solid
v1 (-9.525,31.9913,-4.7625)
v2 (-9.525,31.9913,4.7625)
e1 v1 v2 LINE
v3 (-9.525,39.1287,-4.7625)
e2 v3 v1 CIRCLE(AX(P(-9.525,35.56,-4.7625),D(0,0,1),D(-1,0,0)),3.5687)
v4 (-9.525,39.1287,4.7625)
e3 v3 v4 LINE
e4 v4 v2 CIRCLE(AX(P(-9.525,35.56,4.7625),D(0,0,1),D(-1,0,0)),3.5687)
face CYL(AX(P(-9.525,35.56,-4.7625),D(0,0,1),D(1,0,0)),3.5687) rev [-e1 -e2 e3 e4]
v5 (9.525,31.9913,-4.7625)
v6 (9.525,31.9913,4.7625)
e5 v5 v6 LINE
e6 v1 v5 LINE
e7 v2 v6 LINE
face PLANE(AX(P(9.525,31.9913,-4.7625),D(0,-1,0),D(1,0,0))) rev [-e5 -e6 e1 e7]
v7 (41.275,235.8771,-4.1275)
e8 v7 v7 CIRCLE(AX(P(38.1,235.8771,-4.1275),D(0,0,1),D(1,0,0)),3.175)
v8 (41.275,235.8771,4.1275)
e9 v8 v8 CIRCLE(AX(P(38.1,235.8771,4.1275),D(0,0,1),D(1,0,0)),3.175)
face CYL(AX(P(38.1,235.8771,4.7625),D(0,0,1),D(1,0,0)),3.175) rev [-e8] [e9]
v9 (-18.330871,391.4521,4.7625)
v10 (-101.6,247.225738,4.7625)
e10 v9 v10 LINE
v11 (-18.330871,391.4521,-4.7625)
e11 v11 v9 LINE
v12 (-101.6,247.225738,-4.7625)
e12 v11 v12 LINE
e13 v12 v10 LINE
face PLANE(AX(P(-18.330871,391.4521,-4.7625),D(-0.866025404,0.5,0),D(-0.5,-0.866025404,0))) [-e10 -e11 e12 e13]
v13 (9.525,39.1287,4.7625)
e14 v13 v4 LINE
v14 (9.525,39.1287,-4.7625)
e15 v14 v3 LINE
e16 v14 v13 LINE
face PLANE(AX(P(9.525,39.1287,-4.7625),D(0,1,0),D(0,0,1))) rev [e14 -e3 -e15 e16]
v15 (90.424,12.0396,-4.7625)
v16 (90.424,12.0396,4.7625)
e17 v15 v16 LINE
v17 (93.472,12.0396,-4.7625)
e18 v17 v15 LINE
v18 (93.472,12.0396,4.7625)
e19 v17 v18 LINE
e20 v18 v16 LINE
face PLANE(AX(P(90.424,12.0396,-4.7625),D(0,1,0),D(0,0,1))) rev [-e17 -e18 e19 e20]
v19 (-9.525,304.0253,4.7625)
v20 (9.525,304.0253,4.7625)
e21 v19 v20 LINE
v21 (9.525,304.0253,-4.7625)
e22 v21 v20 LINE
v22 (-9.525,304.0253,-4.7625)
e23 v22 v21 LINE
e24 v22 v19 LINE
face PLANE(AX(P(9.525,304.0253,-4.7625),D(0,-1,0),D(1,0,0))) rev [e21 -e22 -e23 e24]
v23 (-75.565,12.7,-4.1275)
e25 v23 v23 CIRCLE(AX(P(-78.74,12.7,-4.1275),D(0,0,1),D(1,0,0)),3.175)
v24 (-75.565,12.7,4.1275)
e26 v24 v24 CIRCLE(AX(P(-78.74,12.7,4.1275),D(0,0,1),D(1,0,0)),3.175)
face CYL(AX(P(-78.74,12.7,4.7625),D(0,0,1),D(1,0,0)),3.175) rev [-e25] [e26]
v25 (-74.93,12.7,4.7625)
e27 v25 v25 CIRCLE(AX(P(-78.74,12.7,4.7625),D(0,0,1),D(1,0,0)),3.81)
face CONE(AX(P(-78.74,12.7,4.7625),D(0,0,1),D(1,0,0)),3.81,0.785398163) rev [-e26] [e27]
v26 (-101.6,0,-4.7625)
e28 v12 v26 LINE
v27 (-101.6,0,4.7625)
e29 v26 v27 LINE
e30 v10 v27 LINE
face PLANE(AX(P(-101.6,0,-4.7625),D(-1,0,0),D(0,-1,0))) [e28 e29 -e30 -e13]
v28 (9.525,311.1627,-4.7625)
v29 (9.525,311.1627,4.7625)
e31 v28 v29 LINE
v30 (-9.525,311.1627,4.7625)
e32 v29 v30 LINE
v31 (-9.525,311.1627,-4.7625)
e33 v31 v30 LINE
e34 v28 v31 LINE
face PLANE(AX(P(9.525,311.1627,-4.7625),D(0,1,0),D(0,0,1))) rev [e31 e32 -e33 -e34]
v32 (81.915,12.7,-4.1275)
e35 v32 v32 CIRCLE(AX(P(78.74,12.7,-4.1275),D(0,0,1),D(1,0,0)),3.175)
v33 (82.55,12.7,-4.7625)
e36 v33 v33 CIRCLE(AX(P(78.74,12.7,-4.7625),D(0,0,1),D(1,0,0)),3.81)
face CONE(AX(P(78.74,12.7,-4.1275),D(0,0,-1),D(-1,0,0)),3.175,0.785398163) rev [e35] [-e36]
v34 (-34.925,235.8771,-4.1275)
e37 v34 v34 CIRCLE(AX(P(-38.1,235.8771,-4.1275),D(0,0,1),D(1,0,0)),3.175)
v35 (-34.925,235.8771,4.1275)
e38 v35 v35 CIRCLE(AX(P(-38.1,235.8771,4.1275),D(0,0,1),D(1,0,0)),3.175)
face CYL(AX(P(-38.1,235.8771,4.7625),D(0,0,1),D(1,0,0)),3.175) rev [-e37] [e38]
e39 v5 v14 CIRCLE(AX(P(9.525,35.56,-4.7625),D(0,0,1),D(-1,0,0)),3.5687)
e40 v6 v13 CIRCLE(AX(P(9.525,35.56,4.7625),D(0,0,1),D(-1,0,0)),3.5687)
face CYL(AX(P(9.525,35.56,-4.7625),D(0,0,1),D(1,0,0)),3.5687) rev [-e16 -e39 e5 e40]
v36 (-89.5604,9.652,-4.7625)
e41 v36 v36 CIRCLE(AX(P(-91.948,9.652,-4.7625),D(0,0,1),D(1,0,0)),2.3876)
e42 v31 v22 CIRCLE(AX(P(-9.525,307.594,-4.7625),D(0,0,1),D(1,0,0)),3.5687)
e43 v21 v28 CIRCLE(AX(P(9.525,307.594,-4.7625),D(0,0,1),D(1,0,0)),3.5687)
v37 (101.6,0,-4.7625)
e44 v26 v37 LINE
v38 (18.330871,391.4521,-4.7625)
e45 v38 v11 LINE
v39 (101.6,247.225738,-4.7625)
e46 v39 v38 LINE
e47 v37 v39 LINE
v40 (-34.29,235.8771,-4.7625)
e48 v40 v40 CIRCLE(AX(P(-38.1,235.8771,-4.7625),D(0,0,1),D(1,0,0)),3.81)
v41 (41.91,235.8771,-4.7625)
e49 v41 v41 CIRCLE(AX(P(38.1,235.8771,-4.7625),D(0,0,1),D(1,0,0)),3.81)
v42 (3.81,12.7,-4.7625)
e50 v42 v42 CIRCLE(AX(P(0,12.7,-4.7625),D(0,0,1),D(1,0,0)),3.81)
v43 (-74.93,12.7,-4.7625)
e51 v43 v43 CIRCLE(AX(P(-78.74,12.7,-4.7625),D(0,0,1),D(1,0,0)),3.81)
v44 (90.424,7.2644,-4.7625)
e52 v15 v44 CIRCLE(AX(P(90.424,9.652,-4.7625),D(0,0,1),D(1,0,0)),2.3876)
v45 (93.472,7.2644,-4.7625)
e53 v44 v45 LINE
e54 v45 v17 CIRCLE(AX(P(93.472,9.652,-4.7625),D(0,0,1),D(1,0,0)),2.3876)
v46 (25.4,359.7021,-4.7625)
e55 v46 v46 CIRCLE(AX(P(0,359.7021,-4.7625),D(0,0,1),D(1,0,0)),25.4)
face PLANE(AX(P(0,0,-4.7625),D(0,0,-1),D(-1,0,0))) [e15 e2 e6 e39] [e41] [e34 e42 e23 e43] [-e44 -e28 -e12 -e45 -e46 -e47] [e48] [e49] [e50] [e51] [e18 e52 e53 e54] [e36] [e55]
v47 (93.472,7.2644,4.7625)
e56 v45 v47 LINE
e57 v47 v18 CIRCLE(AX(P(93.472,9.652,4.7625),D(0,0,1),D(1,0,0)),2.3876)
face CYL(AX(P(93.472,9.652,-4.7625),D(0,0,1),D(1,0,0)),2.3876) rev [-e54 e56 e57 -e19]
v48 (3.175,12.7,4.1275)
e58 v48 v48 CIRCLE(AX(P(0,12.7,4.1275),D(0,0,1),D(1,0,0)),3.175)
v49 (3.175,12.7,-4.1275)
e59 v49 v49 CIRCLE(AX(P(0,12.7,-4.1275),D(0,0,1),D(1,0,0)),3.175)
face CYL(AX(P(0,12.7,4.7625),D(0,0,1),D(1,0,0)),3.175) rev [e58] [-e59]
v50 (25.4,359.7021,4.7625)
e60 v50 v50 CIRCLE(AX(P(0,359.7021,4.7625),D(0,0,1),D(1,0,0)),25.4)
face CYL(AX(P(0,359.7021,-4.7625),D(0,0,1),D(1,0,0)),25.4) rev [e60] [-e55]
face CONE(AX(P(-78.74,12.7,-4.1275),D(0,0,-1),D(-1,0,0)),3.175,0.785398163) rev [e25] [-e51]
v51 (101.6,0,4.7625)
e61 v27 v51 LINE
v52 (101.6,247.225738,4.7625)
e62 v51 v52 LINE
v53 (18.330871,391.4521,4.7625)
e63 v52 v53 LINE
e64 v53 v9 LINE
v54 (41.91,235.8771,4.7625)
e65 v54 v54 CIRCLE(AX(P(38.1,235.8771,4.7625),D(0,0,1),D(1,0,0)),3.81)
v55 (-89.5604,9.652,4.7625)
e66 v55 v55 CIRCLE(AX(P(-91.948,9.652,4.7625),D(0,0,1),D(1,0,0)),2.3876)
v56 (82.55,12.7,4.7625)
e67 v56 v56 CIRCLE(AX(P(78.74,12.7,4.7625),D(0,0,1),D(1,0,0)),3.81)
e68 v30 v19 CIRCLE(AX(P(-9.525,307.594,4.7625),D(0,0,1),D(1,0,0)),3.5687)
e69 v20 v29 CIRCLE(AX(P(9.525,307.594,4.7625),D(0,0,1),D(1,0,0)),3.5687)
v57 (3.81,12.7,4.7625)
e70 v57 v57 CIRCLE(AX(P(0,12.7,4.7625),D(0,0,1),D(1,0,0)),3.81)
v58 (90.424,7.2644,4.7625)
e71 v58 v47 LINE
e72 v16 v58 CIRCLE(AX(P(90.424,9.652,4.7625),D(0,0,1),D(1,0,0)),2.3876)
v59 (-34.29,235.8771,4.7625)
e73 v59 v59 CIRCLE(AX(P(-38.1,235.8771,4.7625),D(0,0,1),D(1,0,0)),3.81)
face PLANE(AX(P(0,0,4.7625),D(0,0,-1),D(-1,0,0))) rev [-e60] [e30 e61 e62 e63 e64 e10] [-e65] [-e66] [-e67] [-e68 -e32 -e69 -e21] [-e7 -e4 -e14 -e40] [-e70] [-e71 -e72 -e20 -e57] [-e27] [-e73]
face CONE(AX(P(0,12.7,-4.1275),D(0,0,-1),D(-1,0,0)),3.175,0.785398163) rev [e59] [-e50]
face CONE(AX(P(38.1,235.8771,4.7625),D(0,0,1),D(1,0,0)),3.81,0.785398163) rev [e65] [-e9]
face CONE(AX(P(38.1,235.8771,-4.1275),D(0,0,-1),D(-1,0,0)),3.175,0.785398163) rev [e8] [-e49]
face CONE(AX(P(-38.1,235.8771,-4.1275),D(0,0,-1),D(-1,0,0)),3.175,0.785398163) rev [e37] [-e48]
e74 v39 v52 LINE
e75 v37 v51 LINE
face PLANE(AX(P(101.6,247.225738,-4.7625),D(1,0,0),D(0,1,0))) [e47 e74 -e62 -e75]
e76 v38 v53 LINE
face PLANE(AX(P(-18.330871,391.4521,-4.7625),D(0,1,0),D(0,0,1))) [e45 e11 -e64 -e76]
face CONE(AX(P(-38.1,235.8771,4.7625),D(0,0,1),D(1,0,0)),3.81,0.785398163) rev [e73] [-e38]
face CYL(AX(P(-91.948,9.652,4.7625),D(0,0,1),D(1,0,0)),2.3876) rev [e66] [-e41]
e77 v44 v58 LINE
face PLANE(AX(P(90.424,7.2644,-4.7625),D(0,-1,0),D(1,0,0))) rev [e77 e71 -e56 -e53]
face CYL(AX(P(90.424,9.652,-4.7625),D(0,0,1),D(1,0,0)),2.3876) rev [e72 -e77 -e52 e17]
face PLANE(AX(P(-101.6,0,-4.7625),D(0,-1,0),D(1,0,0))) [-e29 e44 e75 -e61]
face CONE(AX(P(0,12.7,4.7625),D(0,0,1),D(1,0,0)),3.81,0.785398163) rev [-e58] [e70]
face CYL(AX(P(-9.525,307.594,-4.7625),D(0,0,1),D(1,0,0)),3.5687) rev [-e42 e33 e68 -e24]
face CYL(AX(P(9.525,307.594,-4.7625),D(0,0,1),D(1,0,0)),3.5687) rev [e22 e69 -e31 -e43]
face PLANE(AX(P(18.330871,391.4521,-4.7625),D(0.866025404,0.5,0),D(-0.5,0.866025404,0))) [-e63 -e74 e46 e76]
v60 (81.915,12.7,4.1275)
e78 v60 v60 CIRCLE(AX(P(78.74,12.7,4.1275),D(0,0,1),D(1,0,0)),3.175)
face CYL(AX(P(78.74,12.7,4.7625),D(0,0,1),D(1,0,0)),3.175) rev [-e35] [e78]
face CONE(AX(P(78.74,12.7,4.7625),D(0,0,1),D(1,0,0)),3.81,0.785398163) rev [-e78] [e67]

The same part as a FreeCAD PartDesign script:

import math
import FreeCAD as App
import Part
import Sketcher
Q = App.Units.Quantity


def add_polygon(sketch, points):
    """Adds a closed chain of lines whose ends are joined by coincident constraints."""
    first, n = sketch.GeometryCount, len(points)
    for a, b in zip(points, points[1:] + points[:1]):
        sketch.addGeometry(Part.LineSegment(App.Vector(*a, 0), App.Vector(*b, 0)), False)
    for i in range(n):
        sketch.addConstraint(Sketcher.Constraint("Coincident", first + i, 2, first + (i + 1) % n, 1))

doc = App.newDocument("Part")
body = doc.addObject("PartDesign::Body", "Body")

# Sketch on XY plane
sketch1 = body.newObject("Sketcher::SketchObject", "Sketch")
sketch1.AttachmentSupport = (doc.getObject("XY_Plane"), [""])
sketch1.MapMode = "FlatFace"
add_polygon(sketch1, [(-101.6, 0), (101.6, 0), (101.6, 247.225738), (18.330871, 391.4521), (-18.330871, 391.4521), (-101.6, 247.225738)])  # lines 0-5
sketch1.addGeometry(Part.ArcOfCircle(Part.Circle(App.Vector(9.525, 35.56, 0), App.Vector(0, 0, 1), 3.5687), math.radians(-90), math.radians(90)), False)  # 6
sketch1.addGeometry(Part.LineSegment(App.Vector(9.525, 31.9913, 0), App.Vector(-9.525, 31.9913, 0)), False)  # 7
sketch1.addGeometry(Part.ArcOfCircle(Part.Circle(App.Vector(-9.525, 35.56, 0), App.Vector(0, 0, 1), 3.5687), math.radians(90), math.radians(270)), False)  # 8
sketch1.addGeometry(Part.LineSegment(App.Vector(-9.525, 39.1287, 0), App.Vector(9.525, 39.1287, 0)), False)  # 9
sketch1.addGeometry(Part.ArcOfCircle(Part.Circle(App.Vector(9.525, 307.594, 0), App.Vector(0, 0, 1), 3.5687), math.radians(-90), math.radians(90)), False)  # 10
sketch1.addGeometry(Part.LineSegment(App.Vector(9.525, 304.0253, 0), App.Vector(-9.525, 304.0253, 0)), False)  # 11
sketch1.addGeometry(Part.ArcOfCircle(Part.Circle(App.Vector(-9.525, 307.594, 0), App.Vector(0, 0, 1), 3.5687), math.radians(90), math.radians(270)), False)  # 12
sketch1.addGeometry(Part.LineSegment(App.Vector(-9.525, 311.1627, 0), App.Vector(9.525, 311.1627, 0)), False)  # 13
sketch1.addGeometry(Part.Circle(App.Vector(0, 359.7021, 0), App.Vector(0, 0, 1), 25.4), False)  # 14
sketch1.addConstraint(Sketcher.Constraint("Tangent", 6, 1, 7, 1))
sketch1.addConstraint(Sketcher.Constraint("Tangent", 7, 2, 8, 2))
sketch1.addConstraint(Sketcher.Constraint("Tangent", 8, 1, 9, 1))
sketch1.addConstraint(Sketcher.Constraint("Tangent", 9, 2, 6, 2))
sketch1.addConstraint(Sketcher.Constraint("Tangent", 10, 1, 11, 1))
sketch1.addConstraint(Sketcher.Constraint("Tangent", 11, 2, 12, 2))
sketch1.addConstraint(Sketcher.Constraint("Tangent", 12, 1, 13, 1))
sketch1.addConstraint(Sketcher.Constraint("Tangent", 13, 2, 10, 2))
sketch1.addConstraint(Sketcher.Constraint("Horizontal", 0))
sketch1.addConstraint(Sketcher.Constraint("Vertical", 1))
sketch1.addConstraint(Sketcher.Constraint("Horizontal", 3))
sketch1.addConstraint(Sketcher.Constraint("Vertical", 5))
sketch1.addConstraint(Sketcher.Constraint("Horizontal", 7))
sketch1.addConstraint(Sketcher.Constraint("Horizontal", 9))
sketch1.addConstraint(Sketcher.Constraint("Horizontal", 11))
sketch1.addConstraint(Sketcher.Constraint("Horizontal", 13))
sketch1.addConstraint(Sketcher.Constraint("Equal", 8, 10))
sketch1.addConstraint(Sketcher.Constraint("Symmetric", 0, 2, 5, 2, -1, 1))
sketch1.addConstraint(Sketcher.Constraint("PointOnObject", 14, 3, -2))
sketch1.addConstraint(Sketcher.Constraint("Horizontal", 1, 2, 4, 2))
sketch1.addConstraint(Sketcher.Constraint("Vertical", 6, 3, 10, 3))
sketch1.addConstraint(Sketcher.Constraint("Vertical", 8, 3, 12, 3))
sketch1.addConstraint(Sketcher.Constraint("Equal", 2, 4))
sketch1.addConstraint(Sketcher.Constraint("Diameter", 14, Q("2 in")))
sketch1.addConstraint(Sketcher.Constraint("DistanceX", 0, 1, 0, 2, Q("8 in")))
sketch1.addConstraint(Sketcher.Constraint("Angle", 2, Q("120 deg")))
sketch1.addConstraint(Sketcher.Constraint("DistanceX", 7, 2, 7, 1, Q("0.75 in")))
sketch1.addConstraint(Sketcher.Constraint("DistanceY", -1, 1, 6, 3, Q("1.4 in")))
sketch1.addConstraint(Sketcher.Constraint("Radius", 6, Q("0.1405 in")))
sketch1.addConstraint(Sketcher.Constraint("DistanceY", -1, 1, 10, 3, Q("12.11 in")))
sketch1.addConstraint(Sketcher.Constraint("DistanceY", 14, 3, 2, 2, Q("1.25 in")))
sketch1.addConstraint(Sketcher.Constraint("DistanceX", -1, 1, 6, 3, Q("0.375 in")))
sketch1.addConstraint(Sketcher.Constraint("DistanceY", 10, 1, 14, 3, Q("2.192 in")))
sketch1.addConstraint(Sketcher.Constraint("DistanceX", 3, 2, 3, 1, Q("36.661742 mm")))
pad1 = body.newObject("PartDesign::Pad", "Pad")
pad1.Profile = sketch1
pad1.Length = Q("0.375 in")
pad1.Midplane = True

# Sketch on YZ plane
sketch2 = body.newObject("Sketcher::SketchObject", "Sketch001")
sketch2.AttachmentSupport = (doc.getObject("YZ_Plane"), [""])
sketch2.MapMode = "FlatFace"
sketch2.AttachmentOffset = App.Placement(App.Vector(0, 0, -1.5 * 25.4), App.Rotation())
add_polygon(sketch2, [(235.8771, -4.7625), (235.8771, 4.7625), (232.0671, 4.7625), (232.7021, 4.1275), (232.7021, -4.1275), (232.0671, -4.7625)])  # lines 0-5
sketch2.addGeometry(Part.LineSegment(App.Vector(235.8771, 4.7625, 0), App.Vector(235.8771, -4.7625, 0)), True)  # axis
sketch2.addConstraint(Sketcher.Constraint("Vertical", 0))
sketch2.addConstraint(Sketcher.Constraint("Horizontal", 1))
sketch2.addConstraint(Sketcher.Constraint("Vertical", 3))
sketch2.addConstraint(Sketcher.Constraint("Horizontal", 5))
sketch2.addConstraint(Sketcher.Constraint("Vertical", 6))
sketch2.addConstraint(Sketcher.Constraint("Coincident", 6, 1, 0, 2))
sketch2.addConstraint(Sketcher.Constraint("Symmetric", 1, 2, 4, 2, -1))
sketch2.addConstraint(Sketcher.Constraint("Perpendicular", 2, 4))
sketch2.addConstraint(Sketcher.Constraint("Horizontal", 4, 2, 6, 2))
sketch2.addConstraint(Sketcher.Constraint("Equal", 2, 4))
sketch2.addConstraint(Sketcher.Constraint("DistanceX", 1, 2, 1, 1, Q("0.15 in")))
sketch2.addConstraint(Sketcher.Constraint("DistanceY", 0, 1, 0, 2, Q("0.375 in")))
sketch2.addConstraint(Sketcher.Constraint("DistanceY", 3, 2, 3, 1, Q("0.325 in")))
sketch2.addConstraint(Sketcher.Constraint("DistanceX", -1, 1, 0, 2, Q("9.2865 in")))
groove = body.newObject("PartDesign::Groove", "Groove")
groove.Profile = sketch2
groove.ReferenceAxis = (sketch2, ["Axis0"])
groove.Angle = 360
doc.recompute()

linearpattern = body.newObject("PartDesign::LinearPattern", "LinearPattern")
linearpattern.Originals = [groove]
linearpattern.Direction = (doc.getObject("X_Axis"), [""])
linearpattern.Mode = "offset"
linearpattern.Offset = Q("3 in")
linearpattern.Occurrences = 2
body.Tip = linearpattern

# Sketch on XY plane
sketch3 = body.newObject("Sketcher::SketchObject", "Sketch002")
sketch3.AttachmentSupport = (doc.getObject("XY_Plane"), [""])
sketch3.MapMode = "FlatFace"
sketch3.AttachmentOffset = App.Placement(App.Vector(0, 0, 0.1875 * 25.4), App.Rotation())
sketch3.addGeometry(Part.Circle(App.Vector(-91.948, 9.652, 0), App.Vector(0, 0, 1), 2.3876), False)
sketch3.addConstraint(Sketcher.Constraint("Diameter", 0, Q("0.188 in")))
sketch3.addConstraint(Sketcher.Constraint("DistanceX", 0, 3, -1, 1, Q("3.62 in")))
sketch3.addConstraint(Sketcher.Constraint("DistanceY", -1, 1, 0, 3, Q("0.38 in")))
doc.recompute()
hole = body.newObject("PartDesign::Hole", "Hole")
hole.Profile = sketch3
hole.ThreadType = "None"
hole.Diameter = Q("0.188 in")
hole.DepthType = "ThroughAll"

# Sketch on XY plane
sketch4 = body.newObject("Sketcher::SketchObject", "Sketch003")
sketch4.AttachmentSupport = (doc.getObject("XY_Plane"), [""])
sketch4.MapMode = "FlatFace"
sketch4.AttachmentOffset = App.Placement(App.Vector(0, 0, 0.1875 * 25.4), App.Rotation())
sketch4.addGeometry(Part.LineSegment(App.Vector(93.472, 12.0396, 0), App.Vector(90.424, 12.0396, 0)), False)
sketch4.addGeometry(Part.ArcOfCircle(Part.Circle(App.Vector(90.424, 9.652, 0), App.Vector(0, 0, 1), 2.3876), math.radians(90), math.radians(270)), False)
sketch4.addGeometry(Part.LineSegment(App.Vector(90.424, 7.2644, 0), App.Vector(93.472, 7.2644, 0)), False)
sketch4.addGeometry(Part.ArcOfCircle(Part.Circle(App.Vector(93.472, 9.652, 0), App.Vector(0, 0, 1), 2.3876), math.radians(-90), math.radians(90)), False)
sketch4.addConstraint(Sketcher.Constraint("Tangent", 0, 2, 1, 1))
sketch4.addConstraint(Sketcher.Constraint("Tangent", 1, 2, 2, 1))
sketch4.addConstraint(Sketcher.Constraint("Tangent", 2, 2, 3, 1))
sketch4.addConstraint(Sketcher.Constraint("Tangent", 3, 2, 0, 1))
sketch4.addConstraint(Sketcher.Constraint("Horizontal", 0))
sketch4.addConstraint(Sketcher.Constraint("Horizontal", 2))
sketch4.addConstraint(Sketcher.Constraint("Radius", 1, Q("0.094 in")))
sketch4.addConstraint(Sketcher.Constraint("DistanceX", 0, 2, 0, 1, Q("0.12 in")))
sketch4.addConstraint(Sketcher.Constraint("DistanceX", -1, 1, 1, 3, Q("3.56 in")))
sketch4.addConstraint(Sketcher.Constraint("DistanceY", -1, 1, 1, 3, Q("0.38 in")))
pocket1 = body.newObject("PartDesign::Pocket", "Pocket")
pocket1.Profile = sketch4
pocket1.Type = "ThroughAll"

# Sketch on YZ plane
sketch5 = body.newObject("Sketcher::SketchObject", "Sketch004")
sketch5.AttachmentSupport = (doc.getObject("YZ_Plane"), [""])
sketch5.MapMode = "FlatFace"
add_polygon(sketch5, [(12.7, -4.7625), (12.7, 4.7625), (8.89, 4.7625), (9.525, 4.1275), (9.525, -4.1275), (8.89, -4.7625)])  # lines 0-5
sketch5.addGeometry(Part.LineSegment(App.Vector(12.7, 4.7625, 0), App.Vector(12.7, -4.7625, 0)), True)  # axis
sketch5.addConstraint(Sketcher.Constraint("Vertical", 0))
sketch5.addConstraint(Sketcher.Constraint("Horizontal", 1))
sketch5.addConstraint(Sketcher.Constraint("Vertical", 3))
sketch5.addConstraint(Sketcher.Constraint("Horizontal", 5))
sketch5.addConstraint(Sketcher.Constraint("Vertical", 6))
sketch5.addConstraint(Sketcher.Constraint("Coincident", 6, 1, 0, 2))
sketch5.addConstraint(Sketcher.Constraint("Symmetric", 1, 2, 4, 2, -1))
sketch5.addConstraint(Sketcher.Constraint("Perpendicular", 2, 4))
sketch5.addConstraint(Sketcher.Constraint("Horizontal", 4, 2, 6, 2))
sketch5.addConstraint(Sketcher.Constraint("Equal", 2, 4))
sketch5.addConstraint(Sketcher.Constraint("DistanceX", 1, 2, 1, 1, Q("0.15 in")))
sketch5.addConstraint(Sketcher.Constraint("DistanceX", -1, 1, 0, 2, Q("0.5 in")))
sketch5.addConstraint(Sketcher.Constraint("DistanceY", 0, 1, 0, 2, Q("0.375 in")))
sketch5.addConstraint(Sketcher.Constraint("DistanceY", 3, 2, 3, 1, Q("0.325 in")))
groove2 = body.newObject("PartDesign::Groove", "Groove001")
groove2.Profile = sketch5
groove2.ReferenceAxis = (sketch5, ["Axis0"])
groove2.Angle = 360
doc.recompute()

linearpattern2 = body.newObject("PartDesign::LinearPattern", "LinearPattern001")
linearpattern2.Originals = [groove2]
linearpattern2.Direction = (doc.getObject("X_Axis"), [""])
linearpattern2.Mode = "offset"
linearpattern2.Offset = Q("3.1 in")
linearpattern2.Occurrences = 2
body.Tip = linearpattern2
doc.recompute()

linearpattern3 = body.newObject("PartDesign::LinearPattern", "LinearPattern002")
linearpattern3.Originals = [groove2]
linearpattern3.Direction = (doc.getObject("X_Axis"), [""])
linearpattern3.Mode = "offset"
linearpattern3.Offset = Q("3.1 in")
linearpattern3.Occurrences = 2
linearpattern3.Reversed = True
body.Tip = linearpattern3

doc.recompute()
